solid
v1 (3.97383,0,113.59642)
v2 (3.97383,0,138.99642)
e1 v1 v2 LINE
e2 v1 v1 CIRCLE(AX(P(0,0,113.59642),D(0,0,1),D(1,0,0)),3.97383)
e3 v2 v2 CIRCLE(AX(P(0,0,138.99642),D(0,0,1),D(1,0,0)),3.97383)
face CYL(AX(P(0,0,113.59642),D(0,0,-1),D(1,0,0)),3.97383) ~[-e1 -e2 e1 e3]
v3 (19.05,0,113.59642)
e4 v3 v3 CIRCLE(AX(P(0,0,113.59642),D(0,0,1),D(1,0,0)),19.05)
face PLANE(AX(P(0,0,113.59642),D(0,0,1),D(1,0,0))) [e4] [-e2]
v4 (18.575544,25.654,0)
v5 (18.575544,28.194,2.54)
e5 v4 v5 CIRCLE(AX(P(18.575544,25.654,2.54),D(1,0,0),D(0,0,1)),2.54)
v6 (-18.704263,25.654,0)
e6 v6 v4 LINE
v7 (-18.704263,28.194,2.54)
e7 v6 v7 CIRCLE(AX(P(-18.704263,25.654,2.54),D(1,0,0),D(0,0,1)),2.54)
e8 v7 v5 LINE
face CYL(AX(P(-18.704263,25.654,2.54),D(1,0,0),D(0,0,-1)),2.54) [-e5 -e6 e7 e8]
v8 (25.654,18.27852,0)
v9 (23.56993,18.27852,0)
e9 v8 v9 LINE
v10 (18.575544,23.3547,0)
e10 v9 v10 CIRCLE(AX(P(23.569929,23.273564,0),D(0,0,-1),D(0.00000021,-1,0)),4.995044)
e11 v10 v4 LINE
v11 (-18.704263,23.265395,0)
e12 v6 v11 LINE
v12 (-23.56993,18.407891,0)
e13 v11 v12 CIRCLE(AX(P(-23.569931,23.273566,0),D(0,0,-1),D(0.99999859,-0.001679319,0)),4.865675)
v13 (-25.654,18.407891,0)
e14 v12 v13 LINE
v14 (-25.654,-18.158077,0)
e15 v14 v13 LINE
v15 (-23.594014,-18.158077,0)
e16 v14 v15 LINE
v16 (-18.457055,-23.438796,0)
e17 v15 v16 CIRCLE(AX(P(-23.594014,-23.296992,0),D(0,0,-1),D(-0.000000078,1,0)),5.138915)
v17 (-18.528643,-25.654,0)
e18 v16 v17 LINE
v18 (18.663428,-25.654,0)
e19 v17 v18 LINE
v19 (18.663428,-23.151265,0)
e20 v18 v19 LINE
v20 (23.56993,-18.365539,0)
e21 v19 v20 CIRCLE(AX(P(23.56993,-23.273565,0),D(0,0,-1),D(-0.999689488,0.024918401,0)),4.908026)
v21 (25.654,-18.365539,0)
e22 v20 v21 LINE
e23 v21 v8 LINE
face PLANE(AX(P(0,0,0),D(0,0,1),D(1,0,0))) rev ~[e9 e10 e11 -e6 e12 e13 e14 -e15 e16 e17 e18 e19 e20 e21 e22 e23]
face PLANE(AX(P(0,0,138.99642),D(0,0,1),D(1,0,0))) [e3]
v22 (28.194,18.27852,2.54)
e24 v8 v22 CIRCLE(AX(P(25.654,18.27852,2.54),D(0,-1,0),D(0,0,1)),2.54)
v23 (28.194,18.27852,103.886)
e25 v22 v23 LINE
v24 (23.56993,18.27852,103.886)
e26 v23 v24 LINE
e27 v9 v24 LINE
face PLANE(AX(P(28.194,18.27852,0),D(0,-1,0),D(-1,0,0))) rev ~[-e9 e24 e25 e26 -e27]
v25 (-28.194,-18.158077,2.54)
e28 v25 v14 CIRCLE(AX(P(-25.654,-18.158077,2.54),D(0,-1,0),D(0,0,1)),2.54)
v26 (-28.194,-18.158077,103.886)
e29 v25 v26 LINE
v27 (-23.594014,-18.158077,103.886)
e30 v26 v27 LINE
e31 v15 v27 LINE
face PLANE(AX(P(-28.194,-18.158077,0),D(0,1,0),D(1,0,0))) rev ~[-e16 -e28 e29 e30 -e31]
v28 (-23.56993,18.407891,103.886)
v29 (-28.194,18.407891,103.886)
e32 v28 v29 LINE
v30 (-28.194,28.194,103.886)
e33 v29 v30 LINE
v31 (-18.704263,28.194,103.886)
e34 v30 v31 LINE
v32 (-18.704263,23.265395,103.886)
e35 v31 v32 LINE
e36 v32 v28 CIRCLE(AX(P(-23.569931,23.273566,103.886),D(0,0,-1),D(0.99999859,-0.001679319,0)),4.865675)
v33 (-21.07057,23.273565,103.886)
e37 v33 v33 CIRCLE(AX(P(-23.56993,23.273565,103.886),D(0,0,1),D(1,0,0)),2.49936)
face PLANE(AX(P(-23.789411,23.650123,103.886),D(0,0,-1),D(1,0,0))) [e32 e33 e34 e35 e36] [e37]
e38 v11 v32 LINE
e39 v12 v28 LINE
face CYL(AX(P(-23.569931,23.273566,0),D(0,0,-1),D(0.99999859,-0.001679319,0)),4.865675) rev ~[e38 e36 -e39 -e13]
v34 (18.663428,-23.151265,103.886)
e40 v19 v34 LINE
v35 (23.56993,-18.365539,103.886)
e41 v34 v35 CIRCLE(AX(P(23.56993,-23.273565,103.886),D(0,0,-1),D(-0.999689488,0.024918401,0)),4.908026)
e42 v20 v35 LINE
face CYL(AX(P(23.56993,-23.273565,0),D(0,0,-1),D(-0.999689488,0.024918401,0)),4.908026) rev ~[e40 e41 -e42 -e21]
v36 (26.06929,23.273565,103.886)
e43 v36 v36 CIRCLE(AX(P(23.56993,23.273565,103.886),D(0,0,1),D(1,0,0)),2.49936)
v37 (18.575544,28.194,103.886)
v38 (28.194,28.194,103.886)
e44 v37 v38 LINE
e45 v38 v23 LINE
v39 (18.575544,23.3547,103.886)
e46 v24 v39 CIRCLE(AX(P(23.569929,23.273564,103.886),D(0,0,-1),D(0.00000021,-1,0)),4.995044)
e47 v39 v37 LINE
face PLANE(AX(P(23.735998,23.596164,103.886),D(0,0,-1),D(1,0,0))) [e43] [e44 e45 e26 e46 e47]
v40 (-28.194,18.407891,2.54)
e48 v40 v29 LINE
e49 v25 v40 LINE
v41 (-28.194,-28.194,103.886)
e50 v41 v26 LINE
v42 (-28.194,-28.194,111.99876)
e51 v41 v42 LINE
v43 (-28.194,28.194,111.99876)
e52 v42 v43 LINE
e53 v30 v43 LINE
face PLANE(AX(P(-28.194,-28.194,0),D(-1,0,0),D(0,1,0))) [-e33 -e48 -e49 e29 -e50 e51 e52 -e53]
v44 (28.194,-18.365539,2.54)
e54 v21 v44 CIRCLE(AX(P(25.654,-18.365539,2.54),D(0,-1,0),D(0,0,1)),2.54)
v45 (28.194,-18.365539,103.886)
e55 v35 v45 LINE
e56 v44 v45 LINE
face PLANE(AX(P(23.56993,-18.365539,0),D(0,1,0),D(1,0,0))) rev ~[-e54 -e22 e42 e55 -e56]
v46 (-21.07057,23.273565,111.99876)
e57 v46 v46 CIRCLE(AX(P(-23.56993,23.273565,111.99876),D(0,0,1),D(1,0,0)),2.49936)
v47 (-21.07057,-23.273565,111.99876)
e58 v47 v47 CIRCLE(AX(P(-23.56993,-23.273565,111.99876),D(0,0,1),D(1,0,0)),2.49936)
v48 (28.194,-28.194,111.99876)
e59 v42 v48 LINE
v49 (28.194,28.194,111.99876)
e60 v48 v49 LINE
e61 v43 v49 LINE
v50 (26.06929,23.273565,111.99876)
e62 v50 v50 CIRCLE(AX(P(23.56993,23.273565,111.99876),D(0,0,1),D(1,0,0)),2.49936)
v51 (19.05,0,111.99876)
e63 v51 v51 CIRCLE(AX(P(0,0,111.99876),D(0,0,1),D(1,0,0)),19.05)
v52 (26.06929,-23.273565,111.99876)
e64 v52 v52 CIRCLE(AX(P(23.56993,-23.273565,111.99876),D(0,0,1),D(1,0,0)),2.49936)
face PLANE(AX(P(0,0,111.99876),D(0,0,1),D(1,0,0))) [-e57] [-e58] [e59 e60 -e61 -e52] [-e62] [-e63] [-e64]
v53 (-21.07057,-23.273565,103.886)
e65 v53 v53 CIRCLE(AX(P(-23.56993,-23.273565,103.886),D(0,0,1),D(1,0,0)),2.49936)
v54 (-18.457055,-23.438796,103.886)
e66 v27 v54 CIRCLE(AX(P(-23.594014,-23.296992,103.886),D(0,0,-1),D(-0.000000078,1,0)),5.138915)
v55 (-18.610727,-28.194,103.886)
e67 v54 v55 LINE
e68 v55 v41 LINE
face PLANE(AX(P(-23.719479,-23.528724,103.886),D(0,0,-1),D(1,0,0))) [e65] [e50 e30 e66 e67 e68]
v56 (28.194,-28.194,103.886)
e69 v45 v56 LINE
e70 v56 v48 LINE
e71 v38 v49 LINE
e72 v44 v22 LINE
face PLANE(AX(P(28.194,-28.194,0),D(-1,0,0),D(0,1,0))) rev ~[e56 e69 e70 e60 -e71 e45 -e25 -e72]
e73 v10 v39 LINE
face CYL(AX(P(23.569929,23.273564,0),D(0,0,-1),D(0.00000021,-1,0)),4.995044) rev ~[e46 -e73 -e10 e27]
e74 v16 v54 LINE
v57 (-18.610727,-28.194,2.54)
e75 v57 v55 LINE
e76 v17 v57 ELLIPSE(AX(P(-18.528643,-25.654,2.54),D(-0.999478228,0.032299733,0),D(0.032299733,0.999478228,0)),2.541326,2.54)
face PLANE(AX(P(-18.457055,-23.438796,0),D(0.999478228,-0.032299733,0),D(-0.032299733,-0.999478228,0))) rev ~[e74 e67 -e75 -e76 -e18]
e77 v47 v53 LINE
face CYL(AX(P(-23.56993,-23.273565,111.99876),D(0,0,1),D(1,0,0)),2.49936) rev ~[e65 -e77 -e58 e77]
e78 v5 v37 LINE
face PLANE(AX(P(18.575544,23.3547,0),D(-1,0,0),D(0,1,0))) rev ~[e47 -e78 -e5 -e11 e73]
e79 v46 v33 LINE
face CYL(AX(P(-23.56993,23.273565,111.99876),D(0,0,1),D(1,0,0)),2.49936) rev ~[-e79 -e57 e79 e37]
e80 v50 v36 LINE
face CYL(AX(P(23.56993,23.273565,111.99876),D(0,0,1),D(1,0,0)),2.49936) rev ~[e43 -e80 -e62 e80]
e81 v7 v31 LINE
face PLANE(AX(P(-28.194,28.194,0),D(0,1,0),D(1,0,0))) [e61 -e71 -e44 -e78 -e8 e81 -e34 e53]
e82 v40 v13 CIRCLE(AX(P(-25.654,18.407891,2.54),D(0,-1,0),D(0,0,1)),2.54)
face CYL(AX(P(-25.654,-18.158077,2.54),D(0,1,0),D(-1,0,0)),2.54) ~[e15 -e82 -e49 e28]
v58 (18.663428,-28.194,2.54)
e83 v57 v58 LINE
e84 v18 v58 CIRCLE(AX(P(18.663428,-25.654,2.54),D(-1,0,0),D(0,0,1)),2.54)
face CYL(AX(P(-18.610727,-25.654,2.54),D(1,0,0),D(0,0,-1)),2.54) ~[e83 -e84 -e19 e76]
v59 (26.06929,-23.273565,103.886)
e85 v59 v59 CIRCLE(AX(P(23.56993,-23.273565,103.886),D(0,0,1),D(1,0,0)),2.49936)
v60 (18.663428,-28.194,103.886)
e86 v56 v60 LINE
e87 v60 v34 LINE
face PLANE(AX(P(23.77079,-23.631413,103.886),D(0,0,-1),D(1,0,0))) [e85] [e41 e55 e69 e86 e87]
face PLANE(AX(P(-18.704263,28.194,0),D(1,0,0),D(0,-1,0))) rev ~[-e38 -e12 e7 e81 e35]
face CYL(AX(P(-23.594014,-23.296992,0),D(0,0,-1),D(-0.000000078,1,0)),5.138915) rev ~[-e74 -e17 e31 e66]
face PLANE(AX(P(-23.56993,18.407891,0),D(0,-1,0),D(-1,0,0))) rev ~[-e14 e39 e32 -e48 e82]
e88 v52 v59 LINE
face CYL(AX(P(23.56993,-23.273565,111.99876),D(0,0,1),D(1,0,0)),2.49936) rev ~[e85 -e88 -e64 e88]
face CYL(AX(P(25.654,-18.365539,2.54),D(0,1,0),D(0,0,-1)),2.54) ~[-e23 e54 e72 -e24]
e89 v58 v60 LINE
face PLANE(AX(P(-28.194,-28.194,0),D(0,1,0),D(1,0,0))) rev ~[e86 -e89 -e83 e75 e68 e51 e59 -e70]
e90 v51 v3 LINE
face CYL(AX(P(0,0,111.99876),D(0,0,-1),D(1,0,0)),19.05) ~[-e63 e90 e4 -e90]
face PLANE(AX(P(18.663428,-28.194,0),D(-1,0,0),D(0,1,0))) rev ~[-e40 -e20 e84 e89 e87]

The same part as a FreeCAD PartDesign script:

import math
import FreeCAD as App
import Part
import Sketcher
Q = App.Units.Quantity


def edges_at(feature, points):
    """Names of the edges that pass closest to the given points."""
    edges = feature.Shape.Edges
    near = lambda p: min(range(len(edges)), key=lambda i: edges[i].distToShape(Part.Vertex(*p))[0])
    return sorted({f"Edge{near(p) + 1}" for p in points})

doc = App.newDocument("Part")
body = doc.addObject("PartDesign::Body", "Body")

sketch1 = doc.addObject("Sketcher::SketchObject", "Sketch")
body.addObject(sketch1)
sketch1.AttachmentSupport = (doc.XY_Plane, [""])
sketch1.MapMode = "FlatFace"
sketch1.addGeometry([
    Part.LineSegment(App.Vector(-28, 28, 0), App.Vector(-28, -28, 0)),
    Part.LineSegment(App.Vector(-28, -28, 0), App.Vector(28, -28, 0)),
    Part.LineSegment(App.Vector(28, -28, 0), App.Vector(28, 28, 0)),
    Part.LineSegment(App.Vector(28, 28, 0), App.Vector(-28, 28, 0)),
], False)
sketch1.addConstraint([
    Sketcher.Constraint("Coincident", 0, 2, 1, 1),
    Sketcher.Constraint("Coincident", 1, 2, 2, 1),
    Sketcher.Constraint("Coincident", 2, 2, 3, 1),
    Sketcher.Constraint("Coincident", 3, 2, 0, 1),
    Sketcher.Constraint("Vertical", 0),
    Sketcher.Constraint("Horizontal", 1),
    Sketcher.Constraint("Vertical", 2),
    Sketcher.Constraint("Horizontal", 3),
    Sketcher.Constraint("Symmetric", 0, 2, 2, 2, -1, 1),
    Sketcher.Constraint("Equal", 3, 0),
    Sketcher.Constraint("DistanceX", 1, 1, 1, 2, Q("2.22 in")),
])
pad1 = doc.addObject("PartDesign::Pad", "Pad")
body.addObject(pad1)
pad1.Profile = sketch1
pad1.Length = Q("4.4094 in")

sketch2 = doc.addObject("Sketcher::SketchObject", "Sketch001")
body.addObject(sketch2)
sketch2.AttachmentSupport = (doc.XY_Plane, [""])
sketch2.MapMode = "FlatFace"
sketch2.AttachmentOffset = App.Placement(App.Vector(0, 0, 4.4094 * 25.4), App.Rotation())
sketch2.addGeometry([
    Part.Circle(App.Vector(-23.6, 23.3, 0), App.Vector(0, 0, 1), 2.5),
    Part.Circle(App.Vector(23.6, 23.3, 0), App.Vector(0, 0, 1), 2.5),
    Part.Circle(App.Vector(23.6, -23.3, 0), App.Vector(0, 0, 1), 2.5),
    Part.Circle(App.Vector(-23.6, -23.3, 0), App.Vector(0, 0, 1), 2.5),
], False)
sketch2.addConstraint([
    Sketcher.Constraint("Equal", 0, 1),
    Sketcher.Constraint("Equal", 1, 2),
    Sketcher.Constraint("Equal", 2, 3),
    Sketcher.Constraint("Symmetric", 0, 3, 2, 3, -1, 1),
    Sketcher.Constraint("Symmetric", 1, 3, 3, 3, -1, 1),
    Sketcher.Constraint("Symmetric", 0, 3, 1, 3, -2),
    Sketcher.Constraint("Diameter", 0, Q("0.1968 in")),
    Sketcher.Constraint("DistanceX", 0, 3, 1, 3, Q("1.8559 in")),
    Sketcher.Constraint("DistanceY", 2, 3, 1, 3, 46.54713),
])
pocket1 = doc.addObject("PartDesign::Pocket", "Pocket")
body.addObject(pocket1)
pocket1.Profile = sketch2
pocket1.Type = "ThroughAll"

sketch3 = doc.addObject("Sketcher::SketchObject", "Sketch002")
body.addObject(sketch3)
sketch3.AttachmentSupport = (doc.XY_Plane, [""])
sketch3.MapMode = "FlatFace"
sketch3.AttachmentOffset = App.Placement(App.Vector(0, 0, 4.4094 * 25.4), App.Rotation())
sketch3.addGeometry(Part.Circle(App.Vector(0, 0, 0), App.Vector(0, 0, 1), 19), False)
sketch3.addConstraint([
    Sketcher.Constraint("Coincident", 0, 3, -1, 1),
    Sketcher.Constraint("Diameter", 0, Q("1.5 in")),
])
pad2 = doc.addObject("PartDesign::Pad", "Pad001")
body.addObject(pad2)
pad2.Profile = sketch3
pad2.Length = Q("0.0629 in")

sketch4 = doc.addObject("Sketcher::SketchObject", "Sketch003")
body.addObject(sketch4)
sketch4.AttachmentSupport = (doc.XY_Plane, [""])
sketch4.MapMode = "FlatFace"
sketch4.AttachmentOffset = App.Placement(App.Vector(0, 0, 4.4723 * 25.4), App.Rotation())
sketch4.addGeometry(Part.Circle(App.Vector(0, 0, 0), App.Vector(0, 0, 1), 4), False)
sketch4.addConstraint([
    Sketcher.Constraint("Coincident", 0, 3, -1, 1),
    Sketcher.Constraint("Diameter", 0, Q("0.3129 in")),
])
pad3 = doc.addObject("PartDesign::Pad", "Pad002")
body.addObject(pad3)
pad3.Profile = sketch4
pad3.Length = Q("1 in")

sketch5 = doc.addObject("Sketcher::SketchObject", "Sketch004")
body.addObject(sketch5)
sketch5.AttachmentSupport = (doc.XY_Plane, [""])
sketch5.MapMode = "FlatFace"
sketch5.addGeometry([
    Part.ArcOfCircle(Part.Circle(App.Vector(-23.594014, -23.296992, 0), App.Vector(0, 0, 1), 5.138915), math.radians(-1.581224), math.radians(90.000004)),
    Part.LineSegment(App.Vector(-18.457055, -23.438796, 0), App.Vector(-18.610727, -28.194, 0)),
    Part.LineSegment(App.Vector(-18.610727, -28.194, 0), App.Vector(-28.194, -28.194, 0)),
    Part.LineSegment(App.Vector(-28.194, -28.194, 0), App.Vector(-28.194, -18.158077, 0)),
    Part.LineSegment(App.Vector(-28.194, -18.158077, 0), App.Vector(-23.594014, -18.158077, 0)),
    Part.LineSegment(App.Vector(-18.704263, 28.194, 0), App.Vector(-18.704263, 23.265395, 0)),
    Part.ArcOfCircle(Part.Circle(App.Vector(-23.569931, 23.273566, 0), App.Vector(0, 0, 1), 4.865675), math.radians(-89.999986), math.radians(-0.096218)),
    Part.LineSegment(App.Vector(-23.56993, 18.407891, 0), App.Vector(-28.194, 18.407891, 0)),
    Part.LineSegment(App.Vector(-28.194, 18.407891, 0), App.Vector(-28.194, 28.194, 0)),
    Part.LineSegment(App.Vector(-28.194, 28.194, 0), App.Vector(-18.704263, 28.194, 0)),
    Part.ArcOfCircle(Part.Circle(App.Vector(23.569929, 23.273564, 0), App.Vector(0, 0, 1), 4.995044), math.radians(179.069286), math.radians(270.000012)),
    Part.LineSegment(App.Vector(18.575544, 23.3547, 0), App.Vector(18.575544, 28.194, 0)),
    Part.LineSegment(App.Vector(18.575544, 28.194, 0), App.Vector(28.194, 28.194, 0)),
    Part.LineSegment(App.Vector(28.194, 28.194, 0), App.Vector(28.194, 18.27852, 0)),
    Part.LineSegment(App.Vector(28.194, 18.27852, 0), App.Vector(23.56993, 18.27852, 0)),
    Part.LineSegment(App.Vector(18.663428, -28.194, 0), App.Vector(18.663428, -23.151265, 0)),
    Part.ArcOfCircle(Part.Circle(App.Vector(23.56993, -23.273565, 0), App.Vector(0, 0, 1), 4.908026), math.radians(90.000002), math.radians(178.572133)),
    Part.LineSegment(App.Vector(23.56993, -18.365539, 0), App.Vector(28.194, -18.365539, 0)),
    Part.LineSegment(App.Vector(28.194, -18.365539, 0), App.Vector(28.194, -28.194, 0)),
    Part.LineSegment(App.Vector(28.194, -28.194, 0), App.Vector(18.663428, -28.194, 0)),
], False)
sketch5.addConstraint([
    Sketcher.Constraint("Coincident", 0, 1, 1, 1),
    Sketcher.Constraint("Coincident", 1, 2, 2, 1),
    Sketcher.Constraint("Coincident", 2, 2, 3, 1),
    Sketcher.Constraint("Coincident", 3, 2, 4, 1),
    Sketcher.Constraint("Tangent", 4, 2, 0, 2),
    Sketcher.Constraint("Coincident", 5, 2, 6, 2),
    Sketcher.Constraint("Tangent", 6, 1, 7, 1),
    Sketcher.Constraint("Coincident", 7, 2, 8, 1),
    Sketcher.Constraint("Coincident", 8, 2, 9, 1),
    Sketcher.Constraint("Coincident", 9, 2, 5, 1),
    Sketcher.Constraint("Coincident", 10, 1, 11, 1),
    Sketcher.Constraint("Coincident", 11, 2, 12, 1),
    Sketcher.Constraint("Coincident", 12, 2, 13, 1),
    Sketcher.Constraint("Coincident", 13, 2, 14, 1),
    Sketcher.Constraint("Tangent", 14, 2, 10, 2),
    Sketcher.Constraint("Coincident", 15, 2, 16, 2),
    Sketcher.Constraint("Tangent", 16, 1, 17, 1),
    Sketcher.Constraint("Coincident", 17, 2, 18, 1),
    Sketcher.Constraint("Coincident", 18, 2, 19, 1),
    Sketcher.Constraint("Coincident", 19, 2, 15, 1),
    Sketcher.Constraint("Horizontal", 2),
    Sketcher.Constraint("Vertical", 3),
    Sketcher.Constraint("Horizontal", 4),
    Sketcher.Constraint("Vertical", 5),
    Sketcher.Constraint("Horizontal", 7),
    Sketcher.Constraint("Vertical", 8),
    Sketcher.Constraint("Horizontal", 9),
    Sketcher.Constraint("Vertical", 11),
    Sketcher.Constraint("Horizontal", 12),
    Sketcher.Constraint("Vertical", 13),
    Sketcher.Constraint("Horizontal", 14),
    Sketcher.Constraint("Vertical", 15),
    Sketcher.Constraint("Horizontal", 17),
    Sketcher.Constraint("Vertical", 18),
    Sketcher.Constraint("Horizontal", 19),
    Sketcher.Constraint("Symmetric", 6, 3, 16, 3, -1, 1),
    Sketcher.Constraint("Symmetric", 2, 2, 12, 2, -1, 1),
    Sketcher.Constraint("Symmetric", 8, 2, 18, 2, -1, 1),
    Sketcher.Constraint("Symmetric", 6, 3, 10, 3, -2),
    Sketcher.Constraint("Symmetric", 8, 2, 12, 2, -2),
    Sketcher.Constraint("DistanceY", 1, 2, -1, 1, Q("1.11 in")),
    Sketcher.Constraint("DistanceX", 2, 2, -1, 1, Q("1.11 in")),
    Sketcher.Constraint("DistanceY", 11, 1, 11, 2, 4.8393),
    Sketcher.Constraint("Radius", 0, 5.138915),
    Sketcher.Constraint("Radius", 6, 4.865675),
    Sketcher.Constraint("Radius", 10, 4.995044),
    Sketcher.Constraint("Radius", 16, 4.908026),
    Sketcher.Constraint("DistanceX", 6, 3, 10, 3, Q("1.8559 in")),
    Sketcher.Constraint("DistanceX", 19, 2, 19, 1, 9.530572),
    Sketcher.Constraint("DistanceY", 8, 1, 8, 2, 9.786109),
    Sketcher.Constraint("DistanceX", 2, 2, 2, 1, 9.583273),
    Sketcher.Constraint("DistanceX", 4, 1, 4, 2, 4.599986),
    Sketcher.Constraint("DistanceY", 3, 1, 3, 2, 10.035923),
    Sketcher.Constraint("DistanceY", 5, 2, 5, 1, 4.928605),
    Sketcher.Constraint("DistanceX", 0, 3, 0, 1, 5.136959),
])
pocket2 = doc.addObject("PartDesign::Pocket", "Pocket001")
body.addObject(pocket2)
pocket2.Profile = sketch5
pocket2.Length = Q("4.09 in")
pocket2.Reversed = True
doc.recompute()

fillet = doc.addObject("PartDesign::Fillet", "Fillet")
body.addObject(fillet)
fillet.Base = (pocket2, edges_at(pocket2, [
    (-28.194, 0.125, 0),
    (0.026, -28.194, 0),
    (28.194, -0.044, 0),
    (-0.064, 28.194, 0),
]))
fillet.Radius = Q("0.1 in")

doc.recompute()
